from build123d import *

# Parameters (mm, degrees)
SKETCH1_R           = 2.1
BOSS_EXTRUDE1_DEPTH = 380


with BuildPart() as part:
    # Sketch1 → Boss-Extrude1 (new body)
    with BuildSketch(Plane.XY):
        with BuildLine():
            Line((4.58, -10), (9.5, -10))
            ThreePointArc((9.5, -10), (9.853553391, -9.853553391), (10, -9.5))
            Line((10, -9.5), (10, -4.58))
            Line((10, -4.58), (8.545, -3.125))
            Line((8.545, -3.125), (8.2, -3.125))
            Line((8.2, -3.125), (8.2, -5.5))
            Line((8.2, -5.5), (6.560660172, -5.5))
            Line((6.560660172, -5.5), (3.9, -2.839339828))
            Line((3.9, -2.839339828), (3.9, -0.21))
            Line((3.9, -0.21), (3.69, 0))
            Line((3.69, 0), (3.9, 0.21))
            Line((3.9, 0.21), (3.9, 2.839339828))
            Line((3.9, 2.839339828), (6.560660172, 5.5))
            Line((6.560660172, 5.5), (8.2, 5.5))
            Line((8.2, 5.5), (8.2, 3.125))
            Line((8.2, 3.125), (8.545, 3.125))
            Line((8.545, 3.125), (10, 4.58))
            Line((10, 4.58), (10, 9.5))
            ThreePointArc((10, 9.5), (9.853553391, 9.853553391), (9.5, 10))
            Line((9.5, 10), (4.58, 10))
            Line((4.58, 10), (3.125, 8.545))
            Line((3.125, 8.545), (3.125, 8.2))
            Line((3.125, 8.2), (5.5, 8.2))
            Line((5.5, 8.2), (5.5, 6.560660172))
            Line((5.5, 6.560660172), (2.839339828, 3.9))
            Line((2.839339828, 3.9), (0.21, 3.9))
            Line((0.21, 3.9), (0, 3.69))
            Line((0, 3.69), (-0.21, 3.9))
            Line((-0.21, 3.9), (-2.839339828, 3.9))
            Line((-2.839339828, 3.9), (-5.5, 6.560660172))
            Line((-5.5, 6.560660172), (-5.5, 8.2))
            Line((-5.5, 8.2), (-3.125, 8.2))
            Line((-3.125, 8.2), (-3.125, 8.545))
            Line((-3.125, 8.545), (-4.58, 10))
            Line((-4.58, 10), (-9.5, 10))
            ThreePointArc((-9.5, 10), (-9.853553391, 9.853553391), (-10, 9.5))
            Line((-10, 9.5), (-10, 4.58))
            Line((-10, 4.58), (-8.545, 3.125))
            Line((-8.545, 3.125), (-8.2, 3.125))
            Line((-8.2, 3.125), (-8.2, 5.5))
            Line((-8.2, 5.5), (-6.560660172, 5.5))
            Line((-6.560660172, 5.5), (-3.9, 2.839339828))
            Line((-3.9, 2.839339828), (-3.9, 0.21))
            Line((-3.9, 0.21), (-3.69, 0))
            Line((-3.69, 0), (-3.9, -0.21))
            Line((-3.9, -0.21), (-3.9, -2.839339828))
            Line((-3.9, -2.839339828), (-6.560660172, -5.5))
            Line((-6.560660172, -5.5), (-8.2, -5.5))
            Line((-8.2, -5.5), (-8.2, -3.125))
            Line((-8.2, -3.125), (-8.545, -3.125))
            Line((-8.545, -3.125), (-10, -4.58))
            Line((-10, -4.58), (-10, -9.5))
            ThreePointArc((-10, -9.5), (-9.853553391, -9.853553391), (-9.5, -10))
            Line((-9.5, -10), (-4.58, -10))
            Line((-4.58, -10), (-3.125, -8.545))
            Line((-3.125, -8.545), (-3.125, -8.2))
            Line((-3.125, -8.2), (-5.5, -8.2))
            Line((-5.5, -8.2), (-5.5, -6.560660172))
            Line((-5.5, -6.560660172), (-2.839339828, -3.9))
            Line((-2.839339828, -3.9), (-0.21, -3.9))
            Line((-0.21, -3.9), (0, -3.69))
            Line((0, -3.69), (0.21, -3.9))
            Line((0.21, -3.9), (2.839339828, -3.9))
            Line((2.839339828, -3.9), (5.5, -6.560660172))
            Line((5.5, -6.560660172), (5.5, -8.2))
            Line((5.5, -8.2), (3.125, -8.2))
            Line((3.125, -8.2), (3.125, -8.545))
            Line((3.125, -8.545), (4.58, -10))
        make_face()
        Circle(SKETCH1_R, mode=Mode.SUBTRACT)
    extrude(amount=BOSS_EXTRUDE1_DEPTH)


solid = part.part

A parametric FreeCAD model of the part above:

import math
import FreeCAD as App
import Part
import Sketcher
from FreeCAD import Vector
Q = App.Units.Quantity

doc = App.newDocument("Part")
body = doc.addObject("PartDesign::Body", "Body")

# Sketch on XY plane
sketch1 = body.newObject("Sketcher::SketchObject", "Sketch")
sketch1.AttachmentSupport = (doc.getObject("XY_Plane"), [""])
sketch1.MapMode = "FlatFace"
sketch1.addGeometry([
    Part.LineSegment(Vector(4.58, -10, 0), Vector(9.5, -10, 0)),  # 0
    Part.ArcOfCircle(Part.Circle(Vector(9.5, -9.5, 0), Vector(0, 0, 1), 0.5), math.radians(-90), math.radians(0)),  # 1
    Part.LineSegment(Vector(10, -9.5, 0), Vector(10, -4.58, 0)),  # 2
    Part.LineSegment(Vector(10, -4.58, 0), Vector(8.54, -3.12, 0)),  # 3
    Part.LineSegment(Vector(8.54, -3.12, 0), Vector(8.2, -3.12, 0)),  # 4
    Part.LineSegment(Vector(8.2, -3.12, 0), Vector(8.2, -5.5, 0)),  # 5
    Part.LineSegment(Vector(8.2, -5.5, 0), Vector(6.56, -5.5, 0)),  # 6
    Part.LineSegment(Vector(6.56, -5.5, 0), Vector(3.9, -2.84, 0)),  # 7
    Part.LineSegment(Vector(3.9, -2.84, 0), Vector(3.9, -0.21, 0)),  # 8
    Part.LineSegment(Vector(3.9, -0.21, 0), Vector(3.69, 0, 0)),  # 9
    Part.LineSegment(Vector(3.69, 0, 0), Vector(3.9, 0.21, 0)),  # 10
    Part.LineSegment(Vector(3.9, 0.21, 0), Vector(3.9, 2.84, 0)),  # 11
    Part.LineSegment(Vector(3.9, 2.84, 0), Vector(6.56, 5.5, 0)),  # 12
    Part.LineSegment(Vector(6.56, 5.5, 0), Vector(8.2, 5.5, 0)),  # 13
    Part.LineSegment(Vector(8.2, 5.5, 0), Vector(8.2, 3.12, 0)),  # 14
    Part.LineSegment(Vector(8.2, 3.12, 0), Vector(8.54, 3.12, 0)),  # 15
    Part.LineSegment(Vector(8.54, 3.12, 0), Vector(10, 4.58, 0)),  # 16
    Part.LineSegment(Vector(10, 4.58, 0), Vector(10, 9.5, 0)),  # 17
    Part.ArcOfCircle(Part.Circle(Vector(9.5, 9.5, 0), Vector(0, 0, 1), 0.5), math.radians(0), math.radians(90)),  # 18
    Part.LineSegment(Vector(9.5, 10, 0), Vector(4.58, 10, 0)),  # 19
    Part.LineSegment(Vector(4.58, 10, 0), Vector(3.12, 8.54, 0)),  # 20
    Part.LineSegment(Vector(3.12, 8.54, 0), Vector(3.12, 8.2, 0)),  # 21
    Part.LineSegment(Vector(3.12, 8.2, 0), Vector(5.5, 8.2, 0)),  # 22
    Part.LineSegment(Vector(5.5, 8.2, 0), Vector(5.5, 6.56, 0)),  # 23
    Part.LineSegment(Vector(5.5, 6.56, 0), Vector(2.84, 3.9, 0)),  # 24
    Part.LineSegment(Vector(2.84, 3.9, 0), Vector(0.21, 3.9, 0)),  # 25
    Part.LineSegment(Vector(0.21, 3.9, 0), Vector(0, 3.69, 0)),  # 26
    Part.LineSegment(Vector(0, 3.69, 0), Vector(-0.21, 3.9, 0)),  # 27
    Part.LineSegment(Vector(-0.21, 3.9, 0), Vector(-2.84, 3.9, 0)),  # 28
    Part.LineSegment(Vector(-2.84, 3.9, 0), Vector(-5.5, 6.56, 0)),  # 29
    Part.LineSegment(Vector(-5.5, 6.56, 0), Vector(-5.5, 8.2, 0)),  # 30
    Part.LineSegment(Vector(-5.5, 8.2, 0), Vector(-3.12, 8.2, 0)),  # 31
    Part.LineSegment(Vector(-3.12, 8.2, 0), Vector(-3.12, 8.54, 0)),  # 32
    Part.LineSegment(Vector(-3.12, 8.54, 0), Vector(-4.58, 10, 0)),  # 33
    Part.LineSegment(Vector(-4.58, 10, 0), Vector(-9.5, 10, 0)),  # 34
    Part.ArcOfCircle(Part.Circle(Vector(-9.5, 9.5, 0), Vector(0, 0, 1), 0.5), math.radians(90), math.radians(180)),  # 35
    Part.LineSegment(Vector(-10, 9.5, 0), Vector(-10, 4.58, 0)),  # 36
    Part.LineSegment(Vector(-10, 4.58, 0), Vector(-8.54, 3.12, 0)),  # 37
    Part.LineSegment(Vector(-8.54, 3.12, 0), Vector(-8.2, 3.12, 0)),  # 38
    Part.LineSegment(Vector(-8.2, 3.12, 0), Vector(-8.2, 5.5, 0)),  # 39
    Part.LineSegment(Vector(-8.2, 5.5, 0), Vector(-6.56, 5.5, 0)),  # 40
    Part.LineSegment(Vector(-6.56, 5.5, 0), Vector(-3.9, 2.84, 0)),  # 41
    Part.LineSegment(Vector(-3.9, 2.84, 0), Vector(-3.9, 0.21, 0)),  # 42
    Part.LineSegment(Vector(-3.9, 0.21, 0), Vector(-3.69, 0, 0)),  # 43
    Part.LineSegment(Vector(-3.69, 0, 0), Vector(-3.9, -0.21, 0)),  # 44
    Part.LineSegment(Vector(-3.9, -0.21, 0), Vector(-3.9, -2.84, 0)),  # 45
    Part.LineSegment(Vector(-3.9, -2.84, 0), Vector(-6.56, -5.5, 0)),  # 46
    Part.LineSegment(Vector(-6.56, -5.5, 0), Vector(-8.2, -5.5, 0)),  # 47
    Part.LineSegment(Vector(-8.2, -5.5, 0), Vector(-8.2, -3.12, 0)),  # 48
    Part.LineSegment(Vector(-8.2, -3.12, 0), Vector(-8.54, -3.12, 0)),  # 49
    Part.LineSegment(Vector(-8.54, -3.12, 0), Vector(-10, -4.58, 0)),  # 50
    Part.LineSegment(Vector(-10, -4.58, 0), Vector(-10, -9.5, 0)),  # 51
    Part.ArcOfCircle(Part.Circle(Vector(-9.5, -9.5, 0), Vector(0, 0, 1), 0.5), math.radians(180), math.radians(270)),  # 52
    Part.LineSegment(Vector(-9.5, -10, 0), Vector(-4.58, -10, 0)),  # 53
    Part.LineSegment(Vector(-4.58, -10, 0), Vector(-3.12, -8.54, 0)),  # 54
    Part.LineSegment(Vector(-3.12, -8.54, 0), Vector(-3.12, -8.2, 0)),  # 55
    Part.LineSegment(Vector(-3.12, -8.2, 0), Vector(-5.5, -8.2, 0)),  # 56
    Part.LineSegment(Vector(-5.5, -8.2, 0), Vector(-5.5, -6.56, 0)),  # 57
    Part.LineSegment(Vector(-5.5, -6.56, 0), Vector(-2.84, -3.9, 0)),  # 58
    Part.LineSegment(Vector(-2.84, -3.9, 0), Vector(-0.21, -3.9, 0)),  # 59
    Part.LineSegment(Vector(-0.21, -3.9, 0), Vector(0, -3.69, 0)),  # 60
    Part.LineSegment(Vector(0, -3.69, 0), Vector(0.21, -3.9, 0)),  # 61
    Part.LineSegment(Vector(0.21, -3.9, 0), Vector(2.84, -3.9, 0)),  # 62
    Part.LineSegment(Vector(2.84, -3.9, 0), Vector(5.5, -6.56, 0)),  # 63
    Part.LineSegment(Vector(5.5, -6.56, 0), Vector(5.5, -8.2, 0)),  # 64
    Part.LineSegment(Vector(5.5, -8.2, 0), Vector(3.12, -8.2, 0)),  # 65
    Part.LineSegment(Vector(3.12, -8.2, 0), Vector(3.12, -8.54, 0)),  # 66
    Part.LineSegment(Vector(3.12, -8.54, 0), Vector(4.58, -10, 0)),  # 67
    Part.Circle(Vector(0, 0, 0), Vector(0, 0, 1), 2.1),  # 68
], False)
sketch1.addConstraint([
    Sketcher.Constraint("Tangent", 0, 2, 1, 1),
    Sketcher.Constraint("Tangent", 1, 2, 2, 1),
    Sketcher.Constraint("Coincident", 2, 2, 3, 1),
    Sketcher.Constraint("Coincident", 3, 2, 4, 1),
    Sketcher.Constraint("Coincident", 4, 2, 5, 1),
    Sketcher.Constraint("Coincident", 5, 2, 6, 1),
    Sketcher.Constraint("Coincident", 6, 2, 7, 1),
    Sketcher.Constraint("Coincident", 7, 2, 8, 1),
    Sketcher.Constraint("Coincident", 8, 2, 9, 1),
    Sketcher.Constraint("Coincident", 9, 2, 10, 1),
    Sketcher.Constraint("Coincident", 10, 2, 11, 1),
    Sketcher.Constraint("Coincident", 11, 2, 12, 1),
    Sketcher.Constraint("Coincident", 12, 2, 13, 1),
    Sketcher.Constraint("Coincident", 13, 2, 14, 1),
    Sketcher.Constraint("Coincident", 14, 2, 15, 1),
    Sketcher.Constraint("Coincident", 15, 2, 16, 1),
    Sketcher.Constraint("Coincident", 16, 2, 17, 1),
    Sketcher.Constraint("Tangent", 17, 2, 18, 1),
    Sketcher.Constraint("Tangent", 18, 2, 19, 1),
    Sketcher.Constraint("Coincident", 19, 2, 20, 1),
    Sketcher.Constraint("Coincident", 20, 2, 21, 1),
    Sketcher.Constraint("Coincident", 21, 2, 22, 1),
    Sketcher.Constraint("Coincident", 22, 2, 23, 1),
    Sketcher.Constraint("Coincident", 23, 2, 24, 1),
    Sketcher.Constraint("Coincident", 24, 2, 25, 1),
    Sketcher.Constraint("Coincident", 25, 2, 26, 1),
    Sketcher.Constraint("Coincident", 26, 2, 27, 1),
    Sketcher.Constraint("Coincident", 27, 2, 28, 1),
    Sketcher.Constraint("Coincident", 28, 2, 29, 1),
    Sketcher.Constraint("Coincident", 29, 2, 30, 1),
    Sketcher.Constraint("Coincident", 30, 2, 31, 1),
    Sketcher.Constraint("Coincident", 31, 2, 32, 1),
    Sketcher.Constraint("Coincident", 32, 2, 33, 1),
    Sketcher.Constraint("Coincident", 33, 2, 34, 1),
    Sketcher.Constraint("Tangent", 34, 2, 35, 1),
    Sketcher.Constraint("Tangent", 35, 2, 36, 1),
    Sketcher.Constraint("Coincident", 36, 2, 37, 1),
    Sketcher.Constraint("Coincident", 37, 2, 38, 1),
    Sketcher.Constraint("Coincident", 38, 2, 39, 1),
    Sketcher.Constraint("Coincident", 39, 2, 40, 1),
    Sketcher.Constraint("Coincident", 40, 2, 41, 1),
    Sketcher.Constraint("Coincident", 41, 2, 42, 1),
    Sketcher.Constraint("Coincident", 42, 2, 43, 1),
    Sketcher.Constraint("Coincident", 43, 2, 44, 1),
    Sketcher.Constraint("Coincident", 44, 2, 45, 1),
    Sketcher.Constraint("Coincident", 45, 2, 46, 1),
    Sketcher.Constraint("Coincident", 46, 2, 47, 1),
    Sketcher.Constraint("Coincident", 47, 2, 48, 1),
    Sketcher.Constraint("Coincident", 48, 2, 49, 1),
    Sketcher.Constraint("Coincident", 49, 2, 50, 1),
    Sketcher.Constraint("Coincident", 50, 2, 51, 1),
    Sketcher.Constraint("Tangent", 51, 2, 52, 1),
    Sketcher.Constraint("Tangent", 52, 2, 53, 1),
    Sketcher.Constraint("Coincident", 53, 2, 54, 1),
    Sketcher.Constraint("Coincident", 54, 2, 55, 1),
    Sketcher.Constraint("Coincident", 55, 2, 56, 1),
    Sketcher.Constraint("Coincident", 56, 2, 57, 1),
    Sketcher.Constraint("Coincident", 57, 2, 58, 1),
    Sketcher.Constraint("Coincident", 58, 2, 59, 1),
    Sketcher.Constraint("Coincident", 59, 2, 60, 1),
    Sketcher.Constraint("Coincident", 60, 2, 61, 1),
    Sketcher.Constraint("Coincident", 61, 2, 62, 1),
    Sketcher.Constraint("Coincident", 62, 2, 63, 1),
    Sketcher.Constraint("Coincident", 63, 2, 64, 1),
    Sketcher.Constraint("Coincident", 64, 2, 65, 1),
    Sketcher.Constraint("Coincident", 65, 2, 66, 1),
    Sketcher.Constraint("Coincident", 66, 2, 67, 1),
    Sketcher.Constraint("Coincident", 67, 2, 0, 1),
    Sketcher.Constraint("Horizontal", 0),
    Sketcher.Constraint("Vertical", 2),
    Sketcher.Constraint("Horizontal", 4),
    Sketcher.Constraint("Vertical", 5),
    Sketcher.Constraint("Horizontal", 6),
    Sketcher.Constraint("Vertical", 8),
    Sketcher.Constraint("Vertical", 11),
    Sketcher.Constraint("Horizontal", 13),
    Sketcher.Constraint("Vertical", 14),
    Sketcher.Constraint("Horizontal", 15),
    Sketcher.Constraint("Vertical", 17),
    Sketcher.Constraint("Horizontal", 19),
    Sketcher.Constraint("Vertical", 21),
    Sketcher.Constraint("Horizontal", 22),
    Sketcher.Constraint("Vertical", 23),
    Sketcher.Constraint("Horizontal", 25),
    Sketcher.Constraint("Horizontal", 28),
    Sketcher.Constraint("Vertical", 30),
    Sketcher.Constraint("Horizontal", 31),
    Sketcher.Constraint("Vertical", 32),
    Sketcher.Constraint("Horizontal", 34),
    Sketcher.Constraint("Vertical", 36),
    Sketcher.Constraint("Horizontal", 38),
    Sketcher.Constraint("Vertical", 39),
    Sketcher.Constraint("Horizontal", 40),
    Sketcher.Constraint("Vertical", 42),
    Sketcher.Constraint("Vertical", 45),
    Sketcher.Constraint("Horizontal", 47),
    Sketcher.Constraint("Vertical", 48),
    Sketcher.Constraint("Horizontal", 49),
    Sketcher.Constraint("Vertical", 51),
    Sketcher.Constraint("Horizontal", 53),
    Sketcher.Constraint("Vertical", 55),
    Sketcher.Constraint("Horizontal", 56),
    Sketcher.Constraint("Vertical", 57),
    Sketcher.Constraint("Horizontal", 59),
    Sketcher.Constraint("Horizontal", 62),
    Sketcher.Constraint("Vertical", 64),
    Sketcher.Constraint("Horizontal", 65),
    Sketcher.Constraint("Vertical", 66),
    Sketcher.Constraint("Coincident", 68, 3, -1, 1),
    Sketcher.Constraint("Equal", 1, 18),
    Sketcher.Constraint("Equal", 18, 35),
    Sketcher.Constraint("Equal", 35, 52),
    Sketcher.Constraint("Symmetric", 1, 3, 35, 3, -1, 1),
    Sketcher.Constraint("Symmetric", 18, 3, 52, 3, -1, 1),
    Sketcher.Constraint("Symmetric", 3, 2, 37, 2, -1, 1),
    Sketcher.Constraint("Symmetric", 5, 2, 39, 2, -1, 1),
    Sketcher.Constraint("Symmetric", 7, 2, 41, 2, -1, 1),
    Sketcher.Constraint("Symmetric", 9, 2, 43, 2, -1, 1),
    Sketcher.Constraint("Symmetric", 10, 2, 44, 2, -1, 1),
    Sketcher.Constraint("Symmetric", 12, 2, 46, 2, -1, 1),
    Sketcher.Constraint("Symmetric", 14, 2, 48, 2, -1, 1),
    Sketcher.Constraint("Symmetric", 20, 2, 54, 2, -1, 1),
    Sketcher.Constraint("Symmetric", 22, 2, 56, 2, -1, 1),
    Sketcher.Constraint("Symmetric", 24, 2, 58, 2, -1, 1),
    Sketcher.Constraint("Symmetric", 26, 2, 60, 2, -1, 1),
    Sketcher.Constraint("Symmetric", 27, 2, 61, 2, -1, 1),
    Sketcher.Constraint("Symmetric", 29, 2, 63, 2, -1, 1),
    Sketcher.Constraint("Symmetric", 31, 2, 65, 2, -1, 1),
    Sketcher.Constraint("Symmetric", 18, 3, 35, 3, -2),
    Sketcher.Constraint("Symmetric", 25, 2, 27, 2, -2),
    Sketcher.Constraint("Symmetric", 23, 2, 29, 2, -2),
    Sketcher.Constraint("Symmetric", 21, 2, 31, 2, -2),
    Sketcher.Constraint("Symmetric", 15, 2, 37, 2, -2),
    Sketcher.Constraint("Symmetric", 13, 2, 39, 2, -2),
    Sketcher.Constraint("Symmetric", 11, 2, 41, 2, -2),
    Sketcher.Constraint("PointOnObject", 9, 2, -1),
    Sketcher.Constraint("PointOnObject", 26, 2, -2),
    Sketcher.Constraint("Parallel", 3, 7),
    Sketcher.Constraint("Parallel", 7, 9),
    Sketcher.Constraint("Perpendicular", 9, 10),
    Sketcher.Constraint("Parallel", 10, 12),
    Sketcher.Constraint("Parallel", 12, 16),
    Sketcher.Constraint("Parallel", 16, 20),
    Sketcher.Constraint("Parallel", 20, 24),
    Sketcher.Constraint("Parallel", 24, 26),
    Sketcher.Constraint("Perpendicular", 26, 27),
    Sketcher.Constraint("Parallel", 27, 29),
    Sketcher.Constraint("Parallel", 29, 33),
    Sketcher.Constraint("Parallel", 33, 37),
    Sketcher.Constraint("Parallel", 37, 41),
    Sketcher.Constraint("Parallel", 41, 43),
    Sketcher.Constraint("Parallel", 44, 46),
    Sketcher.Constraint("Parallel", 46, 50),
    Sketcher.Constraint("Parallel", 50, 54),
    Sketcher.Constraint("Parallel", 54, 58),
    Sketcher.Constraint("Parallel", 58, 60),
    Sketcher.Constraint("Parallel", 61, 63),
    Sketcher.Constraint("Parallel", 63, 67),
    Sketcher.Constraint("Horizontal", 20, 2, 32, 2),
    Sketcher.Constraint("Horizontal", 2, 2, 50, 2),
    Sketcher.Constraint("Horizontal", 54, 2, 66, 2),
    Sketcher.Constraint("Equal", 53, 2),
    Sketcher.Constraint("Equal", 65, 5),
    Sketcher.Constraint("Equal", 62, 8),
    Sketcher.Constraint("Equal", 49, 21),
    Sketcher.Constraint("Equal", 47, 23),
    Sketcher.Constraint("Equal", 16, 20),
    Sketcher.Constraint("Equal", 12, 24),
    Sketcher.Constraint("Equal", 10, 26),
    Sketcher.Constraint("Diameter", 68, Q("4.2 mm")),
    Sketcher.Constraint("Radius", 1, Q("0.5 mm")),
    Sketcher.Constraint("DistanceY", 0, 2, -1, 1, Q("10 mm")),
    Sketcher.Constraint("DistanceX", 0, 1, 0, 2, Q("4.92 mm")),
    Sketcher.Constraint("DistanceX", -1, 1, 4, 2, Q("8.2 mm")),
    Sketcher.Constraint("DistanceY", 5, 2, -1, 1, Q("5.5 mm")),
    Sketcher.Constraint("DistanceX", -1, 1, 7, 2, Q("3.9 mm")),
    Sketcher.Constraint("DistanceX", 4, 2, 4, 1, Q("0.345 mm")),
    Sketcher.Constraint("DistanceY", 8, 2, -1, 1, Q("0.21 mm")),
    Sketcher.Constraint("DistanceX", 6, 2, 6, 1, Q("1.63934 mm")),
])
pad1 = body.newObject("PartDesign::Pad", "Pad")
pad1.Profile = sketch1
pad1.Length = 380

doc.recompute()
